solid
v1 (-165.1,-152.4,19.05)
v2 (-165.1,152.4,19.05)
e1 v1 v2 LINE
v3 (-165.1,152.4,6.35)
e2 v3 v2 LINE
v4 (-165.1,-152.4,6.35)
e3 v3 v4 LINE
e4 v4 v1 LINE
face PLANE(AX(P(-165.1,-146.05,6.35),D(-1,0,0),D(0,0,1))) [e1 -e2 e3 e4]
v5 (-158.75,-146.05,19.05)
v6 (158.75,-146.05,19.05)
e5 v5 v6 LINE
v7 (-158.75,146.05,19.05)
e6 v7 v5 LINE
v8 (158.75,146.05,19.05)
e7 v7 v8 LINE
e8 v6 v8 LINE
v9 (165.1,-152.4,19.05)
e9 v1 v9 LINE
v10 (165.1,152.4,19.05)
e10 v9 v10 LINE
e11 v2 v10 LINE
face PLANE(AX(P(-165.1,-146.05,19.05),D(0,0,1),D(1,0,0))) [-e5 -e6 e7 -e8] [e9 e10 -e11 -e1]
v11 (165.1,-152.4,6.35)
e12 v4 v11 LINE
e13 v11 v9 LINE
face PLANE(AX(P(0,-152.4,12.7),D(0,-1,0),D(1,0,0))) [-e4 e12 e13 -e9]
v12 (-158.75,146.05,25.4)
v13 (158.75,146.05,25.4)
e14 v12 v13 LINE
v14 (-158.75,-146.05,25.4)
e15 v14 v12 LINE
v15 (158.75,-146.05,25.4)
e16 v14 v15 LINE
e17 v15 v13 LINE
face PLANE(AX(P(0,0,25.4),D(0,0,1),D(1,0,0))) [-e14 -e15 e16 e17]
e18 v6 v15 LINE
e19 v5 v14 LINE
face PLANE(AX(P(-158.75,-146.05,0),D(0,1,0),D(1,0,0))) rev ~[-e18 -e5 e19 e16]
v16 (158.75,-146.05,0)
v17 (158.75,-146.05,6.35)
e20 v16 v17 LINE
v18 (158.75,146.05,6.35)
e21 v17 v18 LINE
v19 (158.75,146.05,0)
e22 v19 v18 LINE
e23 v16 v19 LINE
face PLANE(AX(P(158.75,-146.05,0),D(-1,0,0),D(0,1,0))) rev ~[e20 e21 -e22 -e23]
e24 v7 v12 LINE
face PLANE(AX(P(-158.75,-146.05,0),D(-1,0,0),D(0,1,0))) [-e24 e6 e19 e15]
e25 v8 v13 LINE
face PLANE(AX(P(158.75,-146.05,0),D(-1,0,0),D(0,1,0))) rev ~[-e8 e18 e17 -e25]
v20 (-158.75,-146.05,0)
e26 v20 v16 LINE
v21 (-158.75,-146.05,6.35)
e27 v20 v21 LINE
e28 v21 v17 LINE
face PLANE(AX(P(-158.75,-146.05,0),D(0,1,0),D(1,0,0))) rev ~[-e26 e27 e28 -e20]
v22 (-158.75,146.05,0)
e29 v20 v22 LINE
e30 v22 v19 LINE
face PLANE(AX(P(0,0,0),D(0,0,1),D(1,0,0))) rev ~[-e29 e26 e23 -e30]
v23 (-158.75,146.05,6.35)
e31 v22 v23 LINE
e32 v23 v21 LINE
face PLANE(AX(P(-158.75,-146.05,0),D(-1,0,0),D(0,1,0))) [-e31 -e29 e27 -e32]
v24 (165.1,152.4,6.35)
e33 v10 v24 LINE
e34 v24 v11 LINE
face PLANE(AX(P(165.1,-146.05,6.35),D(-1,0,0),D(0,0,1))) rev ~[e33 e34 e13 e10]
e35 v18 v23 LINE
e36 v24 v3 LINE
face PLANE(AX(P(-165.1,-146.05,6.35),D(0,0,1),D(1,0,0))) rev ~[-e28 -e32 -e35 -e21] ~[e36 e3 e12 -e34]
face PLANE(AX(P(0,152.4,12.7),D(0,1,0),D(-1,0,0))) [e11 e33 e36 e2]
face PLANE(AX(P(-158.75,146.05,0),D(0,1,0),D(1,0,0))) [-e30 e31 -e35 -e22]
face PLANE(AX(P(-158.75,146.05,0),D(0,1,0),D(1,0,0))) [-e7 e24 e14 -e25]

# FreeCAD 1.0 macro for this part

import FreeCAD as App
import Part
import Sketcher
Q = App.Units.Quantity

doc = App.newDocument("Part")
body = doc.addObject("PartDesign::Body", "Body")

# Sketch on XY plane
sketch1 = doc.addObject("Sketcher::SketchObject", "Sketch")
body.addObject(sketch1)
sketch1.AttachmentSupport = (doc.XY_Plane, [""])
sketch1.MapMode = "FlatFace"
sketch1.addGeometry([
    Part.LineSegment(App.Vector(-159, 146, 0), App.Vector(-159, -146, 0)),
    Part.LineSegment(App.Vector(-159, -146, 0), App.Vector(159, -146, 0)),
    Part.LineSegment(App.Vector(159, -146, 0), App.Vector(159, 146, 0)),
    Part.LineSegment(App.Vector(159, 146, 0), App.Vector(-159, 146, 0)),
], False)
sketch1.addConstraint([
    Sketcher.Constraint("Coincident", 0, 2, 1, 1),
    Sketcher.Constraint("Coincident", 1, 2, 2, 1),
    Sketcher.Constraint("Coincident", 2, 2, 3, 1),
    Sketcher.Constraint("Coincident", 3, 2, 0, 1),
    Sketcher.Constraint("Vertical", 0),
    Sketcher.Constraint("Horizontal", 1),
    Sketcher.Constraint("Vertical", 2),
    Sketcher.Constraint("Horizontal", 3),
    Sketcher.Constraint("Symmetric", 0, 2, 2, 2, -1, 1),
    Sketcher.Constraint("DistanceX", 1, 1, 1, 2, Q("12.5 in")),
    Sketcher.Constraint("DistanceY", 0, 2, 0, 1, Q("11.5 in")),
])
pad1 = doc.addObject("PartDesign::Pad", "Pad")
body.addObject(pad1)
pad1.Profile = sketch1
pad1.Length = Q("1 in")

# Sketch on YZ plane
sketch2 = doc.addObject("Sketcher::SketchObject", "Sketch001")
body.addObject(sketch2)
sketch2.AttachmentSupport = (doc.YZ_Plane, [""])
sketch2.MapMode = "FlatFace"
sketch2.AttachmentOffset = App.Placement(App.Vector(0, 0, 6.25 * 25.4), App.Rotation())
sketch2.addGeometry([
    Part.LineSegment(App.Vector(-146, 19, 0), App.Vector(-146, 6, 0)),
    Part.LineSegment(App.Vector(-146, 6, 0), App.Vector(146, 6, 0)),
    Part.LineSegment(App.Vector(146, 6, 0), App.Vector(146, 19, 0)),
    Part.LineSegment(App.Vector(146, 19, 0), App.Vector(-146, 19, 0)),
], False)
sketch2.addConstraint([
    Sketcher.Constraint("Coincident", 0, 2, 1, 1),
    Sketcher.Constraint("Coincident", 1, 2, 2, 1),
    Sketcher.Constraint("Coincident", 2, 2, 3, 1),
    Sketcher.Constraint("Coincident", 3, 2, 0, 1),
    Sketcher.Constraint("Vertical", 0),
    Sketcher.Constraint("Horizontal", 1),
    Sketcher.Constraint("Vertical", 2),
    Sketcher.Constraint("Horizontal", 3),
    Sketcher.Constraint("DistanceX", 1, 1, 1, 2, Q("11.5 in")),
    Sketcher.Constraint("DistanceY", 0, 2, 0, 1, Q("0.5 in")),
    Sketcher.Constraint("DistanceX", 0, 2, -1, 1, Q("5.75 in")),
    Sketcher.Constraint("DistanceY", -1, 1, 0, 2, Q("0.25 in")),
])
pad2 = doc.addObject("PartDesign::Pad", "Pad001")
body.addObject(pad2)
pad2.Profile = sketch2
pad2.Length = Q("0.25 in")

# Sketch on YZ plane
sketch3 = doc.addObject("Sketcher::SketchObject", "Sketch002")
body.addObject(sketch3)
sketch3.AttachmentSupport = (doc.YZ_Plane, [""])
sketch3.MapMode = "FlatFace"
sketch3.AttachmentOffset = App.Placement(App.Vector(0, 0, -6.25 * 25.4), App.Rotation())
sketch3.addGeometry([
    Part.LineSegment(App.Vector(146, 19, 0), App.Vector(146, 6, 0)),
    Part.LineSegment(App.Vector(146, 6, 0), App.Vector(-146, 6, 0)),
    Part.LineSegment(App.Vector(-146, 6, 0), App.Vector(-146, 19, 0)),
    Part.LineSegment(App.Vector(-146, 19, 0), App.Vector(146, 19, 0)),
], False)
sketch3.addConstraint([
    Sketcher.Constraint("Coincident", 0, 2, 1, 1),
    Sketcher.Constraint("Coincident", 1, 2, 2, 1),
    Sketcher.Constraint("Coincident", 2, 2, 3, 1),
    Sketcher.Constraint("Coincident", 3, 2, 0, 1),
    Sketcher.Constraint("Vertical", 0),
    Sketcher.Constraint("Horizontal", 1),
    Sketcher.Constraint("Vertical", 2),
    Sketcher.Constraint("Horizontal", 3),
    Sketcher.Constraint("DistanceX", 1, 2, 1, 1, Q("11.5 in")),
    Sketcher.Constraint("DistanceY", 0, 2, 0, 1, Q("0.5 in")),
    Sketcher.Constraint("DistanceX", -1, 1, 0, 2, Q("5.75 in")),
    Sketcher.Constraint("DistanceY", -1, 1, 0, 2, Q("0.25 in")),
])
pad3 = doc.addObject("PartDesign::Pad", "Pad002")
body.addObject(pad3)
pad3.Profile = sketch3
pad3.Length = Q("0.25 in")
pad3.Reversed = True

# Sketch on XZ plane
sketch4 = doc.addObject("Sketcher::SketchObject", "Sketch003")
body.addObject(sketch4)
sketch4.AttachmentSupport = (doc.XZ_Plane, [""])
sketch4.MapMode = "FlatFace"
sketch4.AttachmentOffset = App.Placement(App.Vector(0, 0, -5.75 * 25.4), App.Rotation())
sketch4.addGeometry([
    Part.LineSegment(App.Vector(165, 19, 0), App.Vector(165, 6, 0)),
    Part.LineSegment(App.Vector(165, 6, 0), App.Vector(-165, 6, 0)),
    Part.LineSegment(App.Vector(-165, 6, 0), App.Vector(-165, 19, 0)),
    Part.LineSegment(App.Vector(-165, 19, 0), App.Vector(165, 19, 0)),
], False)
sketch4.addConstraint([
    Sketcher.Constraint("Coincident", 0, 2, 1, 1),
    Sketcher.Constraint("Coincident", 1, 2, 2, 1),
    Sketcher.Constraint("Coincident", 2, 2, 3, 1),
    Sketcher.Constraint("Coincident", 3, 2, 0, 1),
    Sketcher.Constraint("Vertical", 0),
    Sketcher.Constraint("Horizontal", 1),
    Sketcher.Constraint("Vertical", 2),
    Sketcher.Constraint("Horizontal", 3),
    Sketcher.Constraint("DistanceX", 1, 2, 1, 1, Q("13 in")),
    Sketcher.Constraint("DistanceY", 0, 2, 0, 1, Q("0.5 in")),
    Sketcher.Constraint("DistanceX", -1, 1, 0, 2, Q("6.5 in")),
    Sketcher.Constraint("DistanceY", -1, 1, 0, 2, Q("0.25 in")),
])
pad4 = doc.addObject("PartDesign::Pad", "Pad003")
body.addObject(pad4)
pad4.Profile = sketch4
pad4.Length = Q("0.25 in")
pad4.Reversed = True

# Sketch on XZ plane
sketch5 = doc.addObject("Sketcher::SketchObject", "Sketch004")
body.addObject(sketch5)
sketch5.AttachmentSupport = (doc.XZ_Plane, [""])
sketch5.MapMode = "FlatFace"
sketch5.AttachmentOffset = App.Placement(App.Vector(0, 0, 5.75 * 25.4), App.Rotation())
sketch5.addGeometry([
    Part.LineSegment(App.Vector(-165, 19, 0), App.Vector(-165, 6, 0)),
    Part.LineSegment(App.Vector(-165, 6, 0), App.Vector(165, 6, 0)),
    Part.LineSegment(App.Vector(165, 6, 0), App.Vector(165, 19, 0)),
    Part.LineSegment(App.Vector(165, 19, 0), App.Vector(-165, 19, 0)),
], False)
sketch5.addConstraint([
    Sketcher.Constraint("Coincident", 0, 2, 1, 1),
    Sketcher.Constraint("Coincident", 1, 2, 2, 1),
    Sketcher.Constraint("Coincident", 2, 2, 3, 1),
    Sketcher.Constraint("Coincident", 3, 2, 0, 1),
    Sketcher.Constraint("Vertical", 0),
    Sketcher.Constraint("Horizontal", 1),
    Sketcher.Constraint("Vertical", 2),
    Sketcher.Constraint("Horizontal", 3),
    Sketcher.Constraint("DistanceX", 1, 1, 1, 2, Q("13 in")),
    Sketcher.Constraint("DistanceY", 0, 2, 0, 1, Q("0.5 in")),
    Sketcher.Constraint("DistanceX", 0, 2, -1, 1, Q("6.5 in")),
    Sketcher.Constraint("DistanceY", -1, 1, 0, 2, Q("0.25 in")),
])
pad5 = doc.addObject("PartDesign::Pad", "Pad004")
body.addObject(pad5)
pad5.Profile = sketch5
pad5.Length = Q("0.25 in")

doc.recompute()
